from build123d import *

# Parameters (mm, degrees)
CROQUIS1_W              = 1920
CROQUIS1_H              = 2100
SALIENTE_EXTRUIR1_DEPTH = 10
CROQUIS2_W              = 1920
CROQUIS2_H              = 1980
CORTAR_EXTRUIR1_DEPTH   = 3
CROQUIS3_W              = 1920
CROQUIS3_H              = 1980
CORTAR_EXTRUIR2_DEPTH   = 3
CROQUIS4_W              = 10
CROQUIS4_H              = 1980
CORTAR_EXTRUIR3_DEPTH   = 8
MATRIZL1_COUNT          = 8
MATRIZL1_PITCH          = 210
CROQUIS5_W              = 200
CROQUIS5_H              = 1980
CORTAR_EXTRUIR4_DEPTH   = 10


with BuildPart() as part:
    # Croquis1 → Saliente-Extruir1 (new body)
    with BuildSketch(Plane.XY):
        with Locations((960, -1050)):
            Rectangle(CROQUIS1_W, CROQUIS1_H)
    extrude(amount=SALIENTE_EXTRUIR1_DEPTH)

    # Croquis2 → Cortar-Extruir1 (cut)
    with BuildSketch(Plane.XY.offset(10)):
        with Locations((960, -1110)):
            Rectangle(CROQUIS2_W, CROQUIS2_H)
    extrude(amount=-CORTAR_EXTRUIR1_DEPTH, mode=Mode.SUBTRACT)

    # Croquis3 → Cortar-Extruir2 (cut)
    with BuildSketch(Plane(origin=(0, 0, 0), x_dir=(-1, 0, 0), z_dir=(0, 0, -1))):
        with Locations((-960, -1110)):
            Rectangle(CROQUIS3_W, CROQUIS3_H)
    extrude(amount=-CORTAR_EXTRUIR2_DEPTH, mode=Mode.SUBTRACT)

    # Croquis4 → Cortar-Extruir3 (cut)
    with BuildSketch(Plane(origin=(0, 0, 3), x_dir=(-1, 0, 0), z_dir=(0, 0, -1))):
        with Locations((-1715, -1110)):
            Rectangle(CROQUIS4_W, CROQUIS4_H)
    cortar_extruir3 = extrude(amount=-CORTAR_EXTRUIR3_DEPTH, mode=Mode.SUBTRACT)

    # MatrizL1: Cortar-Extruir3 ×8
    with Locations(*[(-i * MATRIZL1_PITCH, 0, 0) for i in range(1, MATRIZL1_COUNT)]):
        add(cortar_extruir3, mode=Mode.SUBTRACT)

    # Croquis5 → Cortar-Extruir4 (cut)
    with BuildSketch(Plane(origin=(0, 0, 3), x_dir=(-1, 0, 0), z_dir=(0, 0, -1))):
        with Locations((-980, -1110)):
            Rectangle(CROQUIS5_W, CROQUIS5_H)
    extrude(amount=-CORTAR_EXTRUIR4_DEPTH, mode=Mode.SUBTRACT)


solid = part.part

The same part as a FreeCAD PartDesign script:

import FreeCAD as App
import Part
import Sketcher
from FreeCAD import Vector

doc = App.newDocument("Part")
body = doc.addObject("PartDesign::Body", "Body")

# Sketch on XY plane
sketch1 = body.newObject("Sketcher::SketchObject", "Sketch")
sketch1.AttachmentSupport = (doc.getObject("XY_Plane"), [""])
sketch1.MapMode = "FlatFace"
sketch1.addGeometry([
    Part.LineSegment(Vector(0, 0, 0), Vector(0, -2100, 0)),
    Part.LineSegment(Vector(0, -2100, 0), Vector(1920, -2100, 0)),
    Part.LineSegment(Vector(1920, -2100, 0), Vector(1920, 0, 0)),
    Part.LineSegment(Vector(1920, 0, 0), Vector(0, 0, 0)),
], False)
sketch1.addConstraint([
    Sketcher.Constraint("Coincident", 0, 2, 1, 1),
    Sketcher.Constraint("Coincident", 1, 2, 2, 1),
    Sketcher.Constraint("Coincident", 2, 2, 3, 1),
    Sketcher.Constraint("Coincident", 3, 2, 0, 1),
    Sketcher.Constraint("Vertical", 0),
    Sketcher.Constraint("Horizontal", 1),
    Sketcher.Constraint("Vertical", 2),
    Sketcher.Constraint("Horizontal", 3),
    Sketcher.Constraint("Coincident", 3, 2, -1, 1),
    Sketcher.Constraint("DistanceX", 1, 1, 1, 2, 1920.0),
    Sketcher.Constraint("DistanceY", 0, 2, 0, 1, 2100.0),
])
pad1 = body.newObject("PartDesign::Pad", "Pad")
pad1.Profile = sketch1
pad1.Length = 10

# Sketch on XY plane
sketch2 = body.newObject("Sketcher::SketchObject", "Sketch001")
sketch2.AttachmentSupport = (doc.getObject("XY_Plane"), [""])
sketch2.MapMode = "FlatFace"
sketch2.AttachmentOffset = App.Placement(Vector(0, 0, 10), App.Rotation())
sketch2.addGeometry([
    Part.LineSegment(Vector(0, -120, 0), Vector(0, -2100, 0)),
    Part.LineSegment(Vector(0, -2100, 0), Vector(1920, -2100, 0)),
    Part.LineSegment(Vector(1920, -2100, 0), Vector(1920, -120, 0)),
    Part.LineSegment(Vector(1920, -120, 0), Vector(0, -120, 0)),
], False)
sketch2.addConstraint([
    Sketcher.Constraint("Coincident", 0, 2, 1, 1),
    Sketcher.Constraint("Coincident", 1, 2, 2, 1),
    Sketcher.Constraint("Coincident", 2, 2, 3, 1),
    Sketcher.Constraint("Coincident", 3, 2, 0, 1),
    Sketcher.Constraint("Vertical", 0),
    Sketcher.Constraint("Horizontal", 1),
    Sketcher.Constraint("Vertical", 2),
    Sketcher.Constraint("Horizontal", 3),
    Sketcher.Constraint("PointOnObject", 0, 2, -2),
    Sketcher.Constraint("DistanceX", 1, 1, 1, 2, 1920.0),
    Sketcher.Constraint("DistanceY", 0, 2, 0, 1, 1980.0),
    Sketcher.Constraint("DistanceY", 0, 2, -1, 1, 2100.0),
])
pocket1 = body.newObject("PartDesign::Pocket", "Pocket")
pocket1.Profile = sketch2
pocket1.Length = 3

# Sketch on XY plane
sketch3 = body.newObject("Sketcher::SketchObject", "Sketch002")
sketch3.AttachmentSupport = (doc.getObject("XY_Plane"), [""])
sketch3.MapMode = "FlatFace"
sketch3.addGeometry([
    Part.LineSegment(Vector(1920, -120, 0), Vector(1920, -2100, 0)),
    Part.LineSegment(Vector(1920, -2100, 0), Vector(0, -2100, 0)),
    Part.LineSegment(Vector(0, -2100, 0), Vector(0, -120, 0)),
    Part.LineSegment(Vector(0, -120, 0), Vector(1920, -120, 0)),
], False)
sketch3.addConstraint([
    Sketcher.Constraint("Coincident", 0, 2, 1, 1),
    Sketcher.Constraint("Coincident", 1, 2, 2, 1),
    Sketcher.Constraint("Coincident", 2, 2, 3, 1),
    Sketcher.Constraint("Coincident", 3, 2, 0, 1),
    Sketcher.Constraint("Vertical", 0),
    Sketcher.Constraint("Horizontal", 1),
    Sketcher.Constraint("Vertical", 2),
    Sketcher.Constraint("Horizontal", 3),
    Sketcher.Constraint("PointOnObject", 1, 2, -2),
    Sketcher.Constraint("DistanceX", 1, 2, 1, 1, 1920.0),
    Sketcher.Constraint("DistanceY", 0, 2, 0, 1, 1980.0),
    Sketcher.Constraint("DistanceY", 0, 2, -1, 1, 2100.0),
])
pocket2 = body.newObject("PartDesign::Pocket", "Pocket001")
pocket2.Profile = sketch3
pocket2.Length = 3
pocket2.Reversed = True

# Sketch on XY plane
sketch4 = body.newObject("Sketcher::SketchObject", "Sketch003")
sketch4.AttachmentSupport = (doc.getObject("XY_Plane"), [""])
sketch4.MapMode = "FlatFace"
sketch4.AttachmentOffset = App.Placement(Vector(0, 0, 3), App.Rotation())
sketch4.addGeometry([
    Part.LineSegment(Vector(1720, -120, 0), Vector(1720, -2100, 0)),
    Part.LineSegment(Vector(1720, -2100, 0), Vector(1710, -2100, 0)),
    Part.LineSegment(Vector(1710, -2100, 0), Vector(1710, -120, 0)),
    Part.LineSegment(Vector(1710, -120, 0), Vector(1720, -120, 0)),
], False)
sketch4.addConstraint([
    Sketcher.Constraint("Coincident", 0, 2, 1, 1),
    Sketcher.Constraint("Coincident", 1, 2, 2, 1),
    Sketcher.Constraint("Coincident", 2, 2, 3, 1),
    Sketcher.Constraint("Coincident", 3, 2, 0, 1),
    Sketcher.Constraint("Vertical", 0),
    Sketcher.Constraint("Horizontal", 1),
    Sketcher.Constraint("Vertical", 2),
    Sketcher.Constraint("Horizontal", 3),
    Sketcher.Constraint("DistanceX", 1, 2, 1, 1, 10.0),
    Sketcher.Constraint("DistanceY", 0, 2, 0, 1, 1980.0),
    Sketcher.Constraint("DistanceX", -1, 1, 0, 2, 1720.0),
    Sketcher.Constraint("DistanceY", 0, 2, -1, 1, 2100.0),
])
pocket3 = body.newObject("PartDesign::Pocket", "Pocket002")
pocket3.Profile = sketch4
pocket3.Length = 8
pocket3.Reversed = True
doc.recompute()

linearpattern = body.newObject("PartDesign::LinearPattern", "LinearPattern")
linearpattern.Originals = [pocket3]
linearpattern.Direction = (doc.getObject("X_Axis"), [""])
linearpattern.Mode = "offset"
linearpattern.Offset = 210
linearpattern.Occurrences = 8
linearpattern.Reversed = True
body.Tip = linearpattern

# Sketch on XY plane
sketch5 = body.newObject("Sketcher::SketchObject", "Sketch004")
sketch5.AttachmentSupport = (doc.getObject("XY_Plane"), [""])
sketch5.MapMode = "FlatFace"
sketch5.AttachmentOffset = App.Placement(Vector(0, 0, 3), App.Rotation())
sketch5.addGeometry([
    Part.LineSegment(Vector(1080, -120, 0), Vector(1080, -2100, 0)),
    Part.LineSegment(Vector(1080, -2100, 0), Vector(880, -2100, 0)),
    Part.LineSegment(Vector(880, -2100, 0), Vector(880, -120, 0)),
    Part.LineSegment(Vector(880, -120, 0), Vector(1080, -120, 0)),
], False)
sketch5.addConstraint([
    Sketcher.Constraint("Coincident", 0, 2, 1, 1),
    Sketcher.Constraint("Coincident", 1, 2, 2, 1),
    Sketcher.Constraint("Coincident", 2, 2, 3, 1),
    Sketcher.Constraint("Coincident", 3, 2, 0, 1),
    Sketcher.Constraint("Vertical", 0),
    Sketcher.Constraint("Horizontal", 1),
    Sketcher.Constraint("Vertical", 2),
    Sketcher.Constraint("Horizontal", 3),
    Sketcher.Constraint("DistanceX", 1, 2, 1, 1, 200.0),
    Sketcher.Constraint("DistanceY", 0, 2, 0, 1, 1980.0),
    Sketcher.Constraint("DistanceX", -1, 1, 0, 2, 1080.0),
    Sketcher.Constraint("DistanceY", 0, 2, -1, 1, 2100.0),
])
pocket4 = body.newObject("PartDesign::Pocket", "Pocket003")
pocket4.Profile = sketch5
pocket4.Length = 10
pocket4.Reversed = True

doc.recompute()
